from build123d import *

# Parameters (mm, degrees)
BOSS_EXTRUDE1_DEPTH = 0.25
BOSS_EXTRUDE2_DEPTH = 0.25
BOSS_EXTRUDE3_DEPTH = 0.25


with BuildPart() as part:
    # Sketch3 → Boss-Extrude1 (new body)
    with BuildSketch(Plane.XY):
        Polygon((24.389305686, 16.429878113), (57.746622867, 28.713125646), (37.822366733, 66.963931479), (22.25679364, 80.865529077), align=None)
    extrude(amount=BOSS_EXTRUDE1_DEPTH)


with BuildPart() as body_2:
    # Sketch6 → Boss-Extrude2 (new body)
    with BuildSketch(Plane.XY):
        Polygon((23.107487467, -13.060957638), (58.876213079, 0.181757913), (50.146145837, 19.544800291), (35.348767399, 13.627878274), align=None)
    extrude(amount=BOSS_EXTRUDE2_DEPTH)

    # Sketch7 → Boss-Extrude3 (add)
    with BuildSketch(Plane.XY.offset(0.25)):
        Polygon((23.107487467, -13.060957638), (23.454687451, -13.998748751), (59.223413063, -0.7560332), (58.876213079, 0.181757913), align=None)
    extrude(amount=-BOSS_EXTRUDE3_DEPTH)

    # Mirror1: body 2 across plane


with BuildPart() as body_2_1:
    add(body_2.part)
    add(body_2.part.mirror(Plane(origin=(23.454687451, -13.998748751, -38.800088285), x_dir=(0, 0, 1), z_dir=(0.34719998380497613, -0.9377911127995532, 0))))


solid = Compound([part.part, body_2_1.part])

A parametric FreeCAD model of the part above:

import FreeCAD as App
import Part
import Sketcher

V = App.Vector

doc = App.newDocument("Part")
body = doc.addObject("PartDesign::Body", "Body")

# Sketch on XY plane
sketch1 = body.newObject("Sketcher::SketchObject", "Sketch")
sketch1.AttachmentSupport = (doc.getObject("XY_Plane"), [""])
sketch1.MapMode = "FlatFace"
sketch1.addGeometry([
    Part.LineSegment(V(24, 16, 0), V(58, 29, 0)),
    Part.LineSegment(V(58, 29, 0), V(38, 67, 0)),
    Part.LineSegment(V(38, 67, 0), V(22, 81, 0)),
    Part.LineSegment(V(22, 81, 0), V(24, 16, 0)),
], False)
sketch1.addConstraint([
    Sketcher.Constraint("Coincident", 0, 2, 1, 1),
    Sketcher.Constraint("Coincident", 1, 2, 2, 1),
    Sketcher.Constraint("Coincident", 2, 2, 3, 1),
    Sketcher.Constraint("Coincident", 3, 2, 0, 1),
    Sketcher.Constraint("Distance", 1, 43.128878),
    Sketcher.Constraint("Distance", 2, 20.869631),
    Sketcher.Constraint("Distance", 3, 64.470929),
    Sketcher.Constraint("DistanceY", -1, 1, 1, 2, 66.963931),
    Sketcher.Constraint("DistanceY", -1, 1, 2, 2, 80.865529),
    Sketcher.Constraint("DistanceY", -1, 1, 3, 2, 16.429878),
    Sketcher.Constraint("DistanceX", 2, 2, 0, 2, 35.489829),
    Sketcher.Constraint("DistanceX", -1, 1, 0, 2, 57.746623),
])
pad1 = body.newObject("PartDesign::Pad", "Pad")
pad1.Profile = sketch1
pad1.Length = 0.25
body2 = doc.addObject("PartDesign::Body", "Body001")

# Sketch on XY plane
sketch2 = body2.newObject("Sketcher::SketchObject", "Sketch001")
sketch2.AttachmentSupport = (doc.getObject("XY_Plane001"), [""])
sketch2.MapMode = "FlatFace"
sketch2.addGeometry([
    Part.LineSegment(V(23, -13, 0), V(59, 0, 0)),
    Part.LineSegment(V(59, 0, 0), V(50, 20, 0)),
    Part.LineSegment(V(50, 20, 0), V(35, 14, 0)),
    Part.LineSegment(V(35, 14, 0), V(23, -13, 0)),
], False)
sketch2.addConstraint([
    Sketcher.Constraint("Coincident", 0, 2, 1, 1),
    Sketcher.Constraint("Coincident", 1, 2, 2, 1),
    Sketcher.Constraint("Coincident", 2, 2, 3, 1),
    Sketcher.Constraint("Coincident", 3, 2, 0, 1),
    Sketcher.Constraint("DistanceY", -1, 1, 1, 2, 19.5448),
    Sketcher.Constraint("Distance", 1, 21.240091),
    Sketcher.Constraint("Distance", 2, 15.936511),
    Sketcher.Constraint("Distance", 3, 29.36227),
    Sketcher.Constraint("DistanceY", -1, 1, 2, 2, 13.627878),
    Sketcher.Constraint("DistanceY", 0, 2, 2, 2, 13.44612),
    Sketcher.Constraint("DistanceX", 3, 2, 2, 2, 12.24128),
    Sketcher.Constraint("DistanceX", -1, 1, 0, 2, 58.876213),
])
pad2 = body2.newObject("PartDesign::Pad", "Pad001")
pad2.Profile = sketch2
pad2.Length = 0.25

# Sketch on XY plane
sketch3 = body2.newObject("Sketcher::SketchObject", "Sketch002")
sketch3.AttachmentSupport = (doc.getObject("XY_Plane001"), [""])
sketch3.MapMode = "FlatFace"
sketch3.AttachmentOffset = App.Placement(V(0, 0, 0.25), App.Rotation())
sketch3.addGeometry([
    Part.LineSegment(V(23.1, -13.1, 0), V(23.5, -14, 0)),
    Part.LineSegment(V(23.5, -14, 0), V(59.2, -0.8, 0)),
    Part.LineSegment(V(59.2, -0.8, 0), V(58.9, 0.2, 0)),
    Part.LineSegment(V(58.9, 0.2, 0), V(23.1, -13.1, 0)),
], False)
sketch3.addConstraint([
    Sketcher.Constraint("Coincident", 0, 2, 1, 1),
    Sketcher.Constraint("Coincident", 1, 2, 2, 1),
    Sketcher.Constraint("Coincident", 2, 2, 3, 1),
    Sketcher.Constraint("Coincident", 3, 2, 0, 1),
    Sketcher.Constraint("Perpendicular", 0, 1),
    Sketcher.Constraint("Perpendicular", 1, 2),
    Sketcher.Constraint("Perpendicular", 2, 3),
    Sketcher.Constraint("Distance", 0, 1.0),
    Sketcher.Constraint("DistanceX", 2, 2, 1, 2, 0.3472),
    Sketcher.Constraint("DistanceY", 0, 2, -1, 1, 13.998749),
    Sketcher.Constraint("Distance", 1, 38.141464),
    Sketcher.Constraint("DistanceX", -1, 1, 0, 2, 23.454687),
])
pad3 = body2.newObject("PartDesign::Pad", "Pad002")
pad3.Profile = sketch3
pad3.Length = 0.25
pad3.Reversed = True
body3 = doc.addObject("PartDesign::Body", "Body002")
doc.recompute()

body3.BaseFeature = body2
doc.recompute()

mirroring = doc.addObject("Part::Mirroring", "Mirroring")
mirroring.Source = body2
mirroring.Base = V(23.454687, -13.998749, -38.800088)
mirroring.Normal = V(0.347199984, -0.937791113, 0)
body4 = doc.addObject("PartDesign::Body", "Body003")
body4.BaseFeature = mirroring
boolean = body3.newObject("PartDesign::Boolean", "Boolean")
boolean.Type = "Fuse"
boolean.addObjects([body4])
doc.recompute()
mirroring.Visibility = False

doc.recompute()
